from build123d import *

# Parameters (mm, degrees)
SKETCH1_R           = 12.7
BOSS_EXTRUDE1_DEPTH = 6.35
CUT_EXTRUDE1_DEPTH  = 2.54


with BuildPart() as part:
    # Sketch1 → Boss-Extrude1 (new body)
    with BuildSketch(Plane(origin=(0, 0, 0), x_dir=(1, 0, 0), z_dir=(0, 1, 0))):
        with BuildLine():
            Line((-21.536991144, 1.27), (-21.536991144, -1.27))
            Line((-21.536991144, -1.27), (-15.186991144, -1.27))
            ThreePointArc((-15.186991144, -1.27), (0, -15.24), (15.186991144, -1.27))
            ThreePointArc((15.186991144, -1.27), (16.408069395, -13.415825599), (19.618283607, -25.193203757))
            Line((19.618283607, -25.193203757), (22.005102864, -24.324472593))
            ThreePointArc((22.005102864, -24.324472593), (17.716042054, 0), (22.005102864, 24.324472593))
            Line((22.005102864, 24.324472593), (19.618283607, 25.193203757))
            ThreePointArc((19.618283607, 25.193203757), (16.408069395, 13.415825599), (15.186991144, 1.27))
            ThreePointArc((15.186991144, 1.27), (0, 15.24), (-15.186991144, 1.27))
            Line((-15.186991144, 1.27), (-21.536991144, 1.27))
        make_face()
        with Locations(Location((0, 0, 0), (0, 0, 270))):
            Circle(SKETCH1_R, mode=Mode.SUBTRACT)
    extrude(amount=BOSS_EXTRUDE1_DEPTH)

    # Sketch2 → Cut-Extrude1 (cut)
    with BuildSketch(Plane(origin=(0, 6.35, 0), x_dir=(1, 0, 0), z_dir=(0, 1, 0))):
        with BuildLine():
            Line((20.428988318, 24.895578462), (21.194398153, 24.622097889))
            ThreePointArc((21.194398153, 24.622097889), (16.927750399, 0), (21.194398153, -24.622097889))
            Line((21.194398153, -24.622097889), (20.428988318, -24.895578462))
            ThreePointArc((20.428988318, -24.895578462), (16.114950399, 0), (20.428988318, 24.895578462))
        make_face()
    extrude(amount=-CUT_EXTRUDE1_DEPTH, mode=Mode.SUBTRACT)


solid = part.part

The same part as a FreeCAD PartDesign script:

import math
import FreeCAD as App
import Part
import Sketcher

V = App.Vector
Q = App.Units.Quantity

doc = App.newDocument("Part")
body = doc.addObject("PartDesign::Body", "Body")

# Sketch on XZ plane
sketch1 = body.newObject("Sketcher::SketchObject", "Sketch")
sketch1.AttachmentSupport = (doc.getObject("XZ_Plane"), [""])
sketch1.MapMode = "FlatFace"
sketch1.addGeometry(Part.LineSegment(V(-21.5, -1.3, 0), V(-21.5, 1.3, 0)), False)
sketch1.addGeometry(Part.LineSegment(V(-21.5, 1.3, 0), V(-15.2, 1.3, 0)), False)
sketch1.addGeometry(Part.ArcOfCircle(Part.Circle(V(0, 0, 0), V(0, 0, 1), 15.2), math.radians(5), math.radians(175)), False)
sketch1.addGeometry(Part.ArcOfCircle(Part.Circle(V(88.8, 0, 0), V(0, 0, 1), 73.7), math.radians(160), math.radians(179.01)), False)
sketch1.addGeometry(Part.LineSegment(V(19.6, 25.2, 0), V(22, 24.3, 0)), False)
sketch1.addGeometry(Part.ArcOfCircle(Part.Circle(V(88.8, 0, 0), V(0, 0, 1), 71.1), math.radians(160), math.radians(200)), False)
sketch1.addGeometry(Part.LineSegment(V(22, -24.3, 0), V(19.6, -25.2, 0)), False)
sketch1.addGeometry(Part.ArcOfCircle(Part.Circle(V(88.8, 0, 0), V(0, 0, 1), 73.7), math.radians(-179.01), math.radians(-160)), False)
sketch1.addGeometry(Part.ArcOfCircle(Part.Circle(V(0, 0, 0), V(0, 0, 1), 15.2), math.radians(-175), math.radians(-5)), False)
sketch1.addGeometry(Part.LineSegment(V(-15.2, -1.3, 0), V(-21.5, -1.3, 0)), False)
sketch1.addGeometry(Part.Circle(V(0, 0, 0), V(0, 0, 1), 12.7), False)
sketch1.addConstraint(Sketcher.Constraint("Coincident", 0, 2, 1, 1))
sketch1.addConstraint(Sketcher.Constraint("Coincident", 1, 2, 2, 2))
sketch1.addConstraint(Sketcher.Constraint("Coincident", 2, 1, 3, 2))
sketch1.addConstraint(Sketcher.Constraint("Coincident", 3, 1, 4, 1))
sketch1.addConstraint(Sketcher.Constraint("Coincident", 4, 2, 5, 1))
sketch1.addConstraint(Sketcher.Constraint("Coincident", 5, 2, 6, 1))
sketch1.addConstraint(Sketcher.Constraint("Coincident", 6, 2, 7, 2))
sketch1.addConstraint(Sketcher.Constraint("Coincident", 7, 1, 8, 2))
sketch1.addConstraint(Sketcher.Constraint("Coincident", 8, 1, 9, 1))
sketch1.addConstraint(Sketcher.Constraint("Coincident", 9, 2, 0, 1))
sketch1.addConstraint(Sketcher.Constraint("Vertical", 0))
sketch1.addConstraint(Sketcher.Constraint("Horizontal", 1))
sketch1.addConstraint(Sketcher.Constraint("Horizontal", 9))
sketch1.addConstraint(Sketcher.Constraint("Coincident", 2, 3, -1, 1))
sketch1.addConstraint(Sketcher.Constraint("Coincident", 8, 3, -1, 1))
sketch1.addConstraint(Sketcher.Constraint("Coincident", 10, 3, -1, 1))
sketch1.addConstraint(Sketcher.Constraint("Coincident", 5, 3, 3, 3))
sketch1.addConstraint(Sketcher.Constraint("Coincident", 7, 3, 3, 3))
sketch1.addConstraint(Sketcher.Constraint("Equal", 3, 7))
sketch1.addConstraint(Sketcher.Constraint("Equal", 2, 8))
sketch1.addConstraint(Sketcher.Constraint("Symmetric", 4, 2, 5, 2, -1))
sketch1.addConstraint(Sketcher.Constraint("Horizontal", 1, 2, 2, 1))
sketch1.addConstraint(Sketcher.Constraint("Horizontal", 7, 1, 8, 1))
sketch1.addConstraint(Sketcher.Constraint("Vertical", 3, 1, 6, 2))
sketch1.addConstraint(Sketcher.Constraint("Diameter", 10, Q("1 in")))
sketch1.addConstraint(Sketcher.Constraint("Radius", 2, Q("0.6 in")))
sketch1.addConstraint(Sketcher.Constraint("Radius", 3, Q("2.9 in")))
sketch1.addConstraint(Sketcher.Constraint("Radius", 5, Q("2.8 in")))
sketch1.addConstraint(Sketcher.Constraint("DistanceY", 0, 1, 0, 2, Q("0.1 in")))
sketch1.addConstraint(Sketcher.Constraint("Angle", 4, Q("-20 deg")))
sketch1.addConstraint(Sketcher.Constraint("DistanceX", 1, 1, 1, 2, Q("0.25 in")))
sketch1.addConstraint(Sketcher.Constraint("DistanceX", 2, 1, 4, 2, Q("6.818112 mm")))
pad1 = body.newObject("PartDesign::Pad", "Pad")
pad1.Profile = sketch1
pad1.Length = Q("0.25 in")
pad1.Reversed = True

# Sketch on XZ plane
sketch2 = body.newObject("Sketcher::SketchObject", "Sketch001")
sketch2.AttachmentSupport = (doc.getObject("XZ_Plane"), [""])
sketch2.MapMode = "FlatFace"
sketch2.AttachmentOffset = App.Placement(V(0, 0, -0.25 * 25.4), App.Rotation())
sketch2.addGeometry(Part.LineSegment(V(21.2, -24.6, 0), V(20.4, -24.9, 0)), False)
sketch2.addGeometry(Part.ArcOfCircle(Part.Circle(V(90.1, 0, 0), V(0, 0, 1), 74), math.radians(160), math.radians(200)), False)
sketch2.addGeometry(Part.LineSegment(V(20.4, 24.9, 0), V(21.2, 24.6, 0)), False)
sketch2.addGeometry(Part.ArcOfCircle(Part.Circle(V(90.1, 0, 0), V(0, 0, 1), 73.2), math.radians(160), math.radians(200)), False)
sketch2.addConstraint(Sketcher.Constraint("Coincident", 0, 2, 1, 2))
sketch2.addConstraint(Sketcher.Constraint("Coincident", 1, 1, 2, 1))
sketch2.addConstraint(Sketcher.Constraint("Coincident", 2, 2, 3, 1))
sketch2.addConstraint(Sketcher.Constraint("Coincident", 3, 2, 0, 1))
sketch2.addConstraint(Sketcher.Constraint("Coincident", 3, 3, 1, 3))
sketch2.addConstraint(Sketcher.Constraint("Symmetric", 0, 2, 1, 1, -1))
sketch2.addConstraint(Sketcher.Constraint("Vertical", 2, 2, 3, 2))
sketch2.addConstraint(Sketcher.Constraint("Distance", 0, Q("0.032 in")))
sketch2.addConstraint(Sketcher.Constraint("Radius", 1, Q("73.991092 mm")))
sketch2.addConstraint(Sketcher.Constraint("DistanceX", -1, 1, 2, 2, Q("21.194398 mm")))
sketch2.addConstraint(Sketcher.Constraint("DistanceX", -1, 1, 0, 2, Q("20.428988 mm")))
sketch2.addConstraint(Sketcher.Constraint("DistanceY", 0, 2, -1, 1, Q("24.895578 mm")))
pocket1 = body.newObject("PartDesign::Pocket", "Pocket")
pocket1.Profile = sketch2
pocket1.Length = Q("0.1 in")
pocket1.Reversed = True

doc.recompute()
